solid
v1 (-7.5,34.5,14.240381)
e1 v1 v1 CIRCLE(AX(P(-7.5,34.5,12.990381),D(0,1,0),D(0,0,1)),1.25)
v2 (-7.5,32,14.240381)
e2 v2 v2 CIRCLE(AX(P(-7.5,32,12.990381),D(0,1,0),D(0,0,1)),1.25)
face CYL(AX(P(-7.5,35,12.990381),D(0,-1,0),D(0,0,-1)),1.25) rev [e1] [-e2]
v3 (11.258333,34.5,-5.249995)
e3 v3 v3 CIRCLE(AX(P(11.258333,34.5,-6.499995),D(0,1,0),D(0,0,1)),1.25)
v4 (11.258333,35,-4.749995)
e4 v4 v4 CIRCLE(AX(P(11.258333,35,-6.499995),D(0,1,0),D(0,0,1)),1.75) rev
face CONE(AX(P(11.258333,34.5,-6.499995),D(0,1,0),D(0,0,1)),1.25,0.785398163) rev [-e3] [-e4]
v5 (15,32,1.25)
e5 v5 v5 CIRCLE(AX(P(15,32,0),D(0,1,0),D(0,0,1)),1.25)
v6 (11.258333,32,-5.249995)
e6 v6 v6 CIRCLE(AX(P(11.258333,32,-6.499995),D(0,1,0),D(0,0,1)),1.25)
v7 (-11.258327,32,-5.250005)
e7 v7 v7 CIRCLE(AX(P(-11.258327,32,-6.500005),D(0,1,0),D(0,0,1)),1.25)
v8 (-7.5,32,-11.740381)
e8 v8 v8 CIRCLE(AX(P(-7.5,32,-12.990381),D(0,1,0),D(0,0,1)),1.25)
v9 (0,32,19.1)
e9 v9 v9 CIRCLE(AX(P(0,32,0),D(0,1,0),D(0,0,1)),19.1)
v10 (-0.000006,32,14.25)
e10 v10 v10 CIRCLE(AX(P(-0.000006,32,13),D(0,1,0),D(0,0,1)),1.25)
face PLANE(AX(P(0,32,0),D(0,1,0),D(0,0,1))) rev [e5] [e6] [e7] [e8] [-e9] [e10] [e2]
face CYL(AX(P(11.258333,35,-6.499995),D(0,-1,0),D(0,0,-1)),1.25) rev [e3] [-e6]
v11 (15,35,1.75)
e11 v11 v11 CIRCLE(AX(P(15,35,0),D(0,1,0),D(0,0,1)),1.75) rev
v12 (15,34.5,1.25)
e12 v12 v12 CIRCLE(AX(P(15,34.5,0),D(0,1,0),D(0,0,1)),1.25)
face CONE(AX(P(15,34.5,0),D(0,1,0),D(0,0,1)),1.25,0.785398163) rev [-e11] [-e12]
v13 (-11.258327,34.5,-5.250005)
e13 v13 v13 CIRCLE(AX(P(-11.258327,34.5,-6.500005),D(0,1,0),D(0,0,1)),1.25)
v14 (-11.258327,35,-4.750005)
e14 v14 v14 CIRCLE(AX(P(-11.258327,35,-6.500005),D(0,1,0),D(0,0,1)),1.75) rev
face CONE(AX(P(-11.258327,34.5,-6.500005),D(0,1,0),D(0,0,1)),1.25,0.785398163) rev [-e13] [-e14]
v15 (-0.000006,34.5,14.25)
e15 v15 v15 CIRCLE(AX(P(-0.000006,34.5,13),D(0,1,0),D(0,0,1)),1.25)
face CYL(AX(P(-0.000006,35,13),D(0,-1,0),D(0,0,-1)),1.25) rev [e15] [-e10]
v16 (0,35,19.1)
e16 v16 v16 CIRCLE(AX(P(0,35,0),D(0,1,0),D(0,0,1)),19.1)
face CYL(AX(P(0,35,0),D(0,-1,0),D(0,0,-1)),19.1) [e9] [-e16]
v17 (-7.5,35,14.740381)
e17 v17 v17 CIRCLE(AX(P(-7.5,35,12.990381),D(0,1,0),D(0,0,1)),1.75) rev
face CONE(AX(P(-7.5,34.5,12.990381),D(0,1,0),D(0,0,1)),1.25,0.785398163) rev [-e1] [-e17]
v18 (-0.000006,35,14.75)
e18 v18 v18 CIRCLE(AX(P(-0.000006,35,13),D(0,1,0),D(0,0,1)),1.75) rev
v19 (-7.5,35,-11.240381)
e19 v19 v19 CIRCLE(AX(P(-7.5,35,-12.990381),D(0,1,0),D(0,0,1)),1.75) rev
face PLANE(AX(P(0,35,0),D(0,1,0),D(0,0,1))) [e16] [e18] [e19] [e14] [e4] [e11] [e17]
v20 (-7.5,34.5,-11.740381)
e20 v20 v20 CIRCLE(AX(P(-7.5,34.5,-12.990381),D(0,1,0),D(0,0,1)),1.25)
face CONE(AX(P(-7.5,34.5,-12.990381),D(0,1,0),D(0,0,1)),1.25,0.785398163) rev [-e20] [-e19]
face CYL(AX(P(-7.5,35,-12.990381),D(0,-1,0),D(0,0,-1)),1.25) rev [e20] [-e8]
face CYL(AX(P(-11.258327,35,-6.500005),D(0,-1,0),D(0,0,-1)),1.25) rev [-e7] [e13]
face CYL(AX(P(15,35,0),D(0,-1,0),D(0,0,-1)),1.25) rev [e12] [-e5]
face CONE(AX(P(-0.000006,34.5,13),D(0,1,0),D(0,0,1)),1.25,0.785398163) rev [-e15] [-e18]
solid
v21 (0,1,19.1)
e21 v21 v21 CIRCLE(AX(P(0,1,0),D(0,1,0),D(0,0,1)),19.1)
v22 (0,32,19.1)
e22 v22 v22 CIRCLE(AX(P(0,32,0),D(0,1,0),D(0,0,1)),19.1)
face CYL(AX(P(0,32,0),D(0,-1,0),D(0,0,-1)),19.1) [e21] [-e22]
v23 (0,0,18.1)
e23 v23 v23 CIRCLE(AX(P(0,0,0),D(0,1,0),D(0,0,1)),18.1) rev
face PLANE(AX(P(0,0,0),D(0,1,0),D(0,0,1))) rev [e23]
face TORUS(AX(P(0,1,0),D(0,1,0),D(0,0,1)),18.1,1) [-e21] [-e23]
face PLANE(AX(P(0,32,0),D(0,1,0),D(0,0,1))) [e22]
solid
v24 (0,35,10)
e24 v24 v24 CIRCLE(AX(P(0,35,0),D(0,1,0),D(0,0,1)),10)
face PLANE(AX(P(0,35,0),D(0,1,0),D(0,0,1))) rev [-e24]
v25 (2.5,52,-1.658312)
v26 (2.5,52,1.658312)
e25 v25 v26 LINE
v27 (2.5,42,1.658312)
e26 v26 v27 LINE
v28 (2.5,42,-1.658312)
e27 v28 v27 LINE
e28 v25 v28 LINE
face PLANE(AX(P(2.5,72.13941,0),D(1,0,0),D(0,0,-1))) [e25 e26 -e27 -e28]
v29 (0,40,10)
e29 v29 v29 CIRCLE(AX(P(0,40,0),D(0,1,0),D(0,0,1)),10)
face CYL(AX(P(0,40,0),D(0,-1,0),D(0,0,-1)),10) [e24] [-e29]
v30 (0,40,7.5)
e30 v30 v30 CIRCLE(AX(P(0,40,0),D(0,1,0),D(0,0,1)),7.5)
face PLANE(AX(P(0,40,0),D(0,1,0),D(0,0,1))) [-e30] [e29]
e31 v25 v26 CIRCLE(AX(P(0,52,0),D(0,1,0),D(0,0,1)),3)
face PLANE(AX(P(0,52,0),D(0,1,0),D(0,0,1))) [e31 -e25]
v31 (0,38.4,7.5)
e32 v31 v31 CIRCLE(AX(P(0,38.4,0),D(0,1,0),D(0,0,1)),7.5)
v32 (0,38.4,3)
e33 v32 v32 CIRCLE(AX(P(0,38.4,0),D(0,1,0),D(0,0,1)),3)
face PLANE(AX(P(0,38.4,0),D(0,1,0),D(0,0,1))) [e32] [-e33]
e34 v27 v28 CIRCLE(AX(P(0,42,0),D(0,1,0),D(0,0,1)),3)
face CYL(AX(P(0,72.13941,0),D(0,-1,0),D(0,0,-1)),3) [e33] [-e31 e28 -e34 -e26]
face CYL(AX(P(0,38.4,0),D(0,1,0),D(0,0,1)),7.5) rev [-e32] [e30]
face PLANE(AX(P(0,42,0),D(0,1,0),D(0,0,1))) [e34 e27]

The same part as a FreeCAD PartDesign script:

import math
import FreeCAD as App
import Part
import Sketcher
from FreeCAD import Vector
Q = App.Units.Quantity


def edges_at(feature, points):
    """Names of the edges that pass closest to the given points."""
    edges = feature.Shape.Edges
    near = lambda p: min(range(len(edges)), key=lambda i: edges[i].distToShape(Part.Vertex(*p))[0])
    return sorted({f"Edge{near(p) + 1}" for p in points})

doc = App.newDocument("Part")
body = doc.addObject("PartDesign::Body", "Body")

# Sketch on XZ plane
sketch1 = body.newObject("Sketcher::SketchObject", "Sketch")
sketch1.AttachmentSupport = (doc.getObject("XZ_Plane"), [""])
sketch1.MapMode = "FlatFace"
sketch1.addGeometry(Part.Circle(Vector(0, 0, 0), Vector(0, 0, 1), 19), False)
sketch1.addConstraint([
    Sketcher.Constraint("Coincident", 0, 3, -1, 1),
    Sketcher.Constraint("Diameter", 0, Q("38.2 mm")),
])
pad1 = body.newObject("PartDesign::Pad", "Pad")
pad1.Profile = sketch1
pad1.Length = 32
pad1.Reversed = True
doc.recompute()

fillet = body.newObject("PartDesign::Fillet", "Fillet")
fillet.Base = (pad1, edges_at(pad1, [(0, 0, -19.1)]))
fillet.Radius = 1
body2 = doc.addObject("PartDesign::Body", "Body001")

# Sketch on XZ plane
sketch2 = body2.newObject("Sketcher::SketchObject", "Sketch001")
sketch2.AttachmentSupport = (doc.getObject("XZ_Plane001"), [""])
sketch2.MapMode = "FlatFace"
sketch2.AttachmentOffset = App.Placement(Vector(0, 0, -32), App.Rotation())
sketch2.addGeometry([
    Part.Circle(Vector(0, 0, 0), Vector(0, 0, 1), 19.1),  # 0
    Part.Circle(Vector(-7.5, -13, 0), Vector(0, 0, 1), 1.2),  # 1
    Part.Circle(Vector(-11.3, -6.5, 0), Vector(0, 0, 1), 1.2),  # 2
    Part.Circle(Vector(-7.5, 13, 0), Vector(0, 0, 1), 1.2),  # 3
    Part.Circle(Vector(0, 13, 0), Vector(0, 0, 1), 1.2),  # 4
    Part.Circle(Vector(11.3, -6.5, 0), Vector(0, 0, 1), 1.2),  # 5
    Part.Circle(Vector(15, 0, 0), Vector(0, 0, 1), 1.2),  # 6
], False)
sketch2.addConstraint([
    Sketcher.Constraint("Coincident", 0, 3, -1, 1),
    Sketcher.Constraint("Equal", 1, 2),
    Sketcher.Constraint("Equal", 2, 3),
    Sketcher.Constraint("Equal", 3, 4),
    Sketcher.Constraint("Equal", 4, 5),
    Sketcher.Constraint("Equal", 5, 6),
    Sketcher.Constraint("Symmetric", 1, 3, 3, 3, -1),
    Sketcher.Constraint("PointOnObject", 6, 3, -1),
    Sketcher.Constraint("Diameter", 0, Q("38.2 mm")),
    Sketcher.Constraint("Diameter", 1, Q("2.5 mm")),
    Sketcher.Constraint("DistanceY", -1, 1, 4, 3, Q("13 mm")),
    Sketcher.Constraint("DistanceX", -1, 1, 6, 3, Q("15 mm")),
    Sketcher.Constraint("DistanceX", 1, 3, -1, 1, Q("7.5 mm")),
    Sketcher.Constraint("DistanceY", 1, 3, -1, 1, Q("12.990381 mm")),
    Sketcher.Constraint("DistanceX", 2, 3, 4, 3, Q("11.258321 mm")),
    Sketcher.Constraint("DistanceX", 4, 3, 5, 3, Q("11.25834 mm")),
    Sketcher.Constraint("DistanceX", 2, 3, -1, 1, Q("11.258327 mm")),
    Sketcher.Constraint("DistanceY", 2, 3, -1, 1, Q("6.500005 mm")),
    Sketcher.Constraint("DistanceY", 5, 3, -1, 1, Q("6.499995 mm")),
])
pad2 = body2.newObject("PartDesign::Pad", "Pad001")
pad2.Profile = sketch2
pad2.Length = 3
pad2.Reversed = True
doc.recompute()

chamfer = body2.newObject("PartDesign::Chamfer", "Chamfer")
chamfer.Base = (pad2, edges_at(pad2, [
    (-11.258, 35, -7.75),
    (11.258, 35, -7.75),
    (-7.5, 35, -14.24),
    (15, 35, -1.25),
    (-7.5, 35, 11.74),
    (0, 35, 11.75),
]))
chamfer.Size = 0.5
body3 = doc.addObject("PartDesign::Body", "Body002")

# Sketch on XZ plane
sketch3 = body3.newObject("Sketcher::SketchObject", "Sketch002")
sketch3.AttachmentSupport = (doc.getObject("XZ_Plane002"), [""])
sketch3.MapMode = "FlatFace"
sketch3.AttachmentOffset = App.Placement(Vector(0, 0, -35), App.Rotation())
sketch3.addGeometry(Part.Circle(Vector(0, 0, 0), Vector(0, 0, 1), 10), False)
sketch3.addConstraint([
    Sketcher.Constraint("Coincident", 0, 3, -1, 1),
    Sketcher.Constraint("Diameter", 0, Q("20 mm")),
])
pad3 = body3.newObject("PartDesign::Pad", "Pad002")
pad3.Profile = sketch3
pad3.Length = 5
pad3.Reversed = True

# Sketch on XZ plane
sketch4 = body3.newObject("Sketcher::SketchObject", "Sketch003")
sketch4.AttachmentSupport = (doc.getObject("XZ_Plane002"), [""])
sketch4.MapMode = "FlatFace"
sketch4.AttachmentOffset = App.Placement(Vector(0, 0, -40), App.Rotation())
sketch4.addGeometry(Part.Circle(Vector(0, 0, 0), Vector(0, 0, 1), 8), False)
sketch4.addConstraint([
    Sketcher.Constraint("Coincident", 0, 3, -1, 1),
    Sketcher.Constraint("Diameter", 0, Q("15 mm")),
])
pocket1 = body3.newObject("PartDesign::Pocket", "Pocket")
pocket1.Profile = sketch4
pocket1.Length = 1.6
pocket1.Reversed = True

# Sketch on XZ plane
sketch5 = body3.newObject("Sketcher::SketchObject", "Sketch004")
sketch5.AttachmentSupport = (doc.getObject("XZ_Plane002"), [""])
sketch5.MapMode = "FlatFace"
sketch5.AttachmentOffset = App.Placement(Vector(0, 0, -38.4), App.Rotation())
sketch5.addGeometry([
    Part.LineSegment(Vector(2.5, 1.7, 0), Vector(2.5, -1.7, 0)),
    Part.ArcOfCircle(Part.Circle(Vector(0, 0, 0), Vector(0, 0, 1), 3), math.radians(34), math.radians(326)),
], False)
sketch5.addConstraint([
    Sketcher.Constraint("Coincident", 0, 1, 1, 1),
    Sketcher.Constraint("Coincident", 1, 2, 0, 2),
    Sketcher.Constraint("Vertical", 0),
    Sketcher.Constraint("Coincident", 1, 3, -1, 1),
    Sketcher.Constraint("Radius", 1, Q("3 mm")),
    Sketcher.Constraint("DistanceX", -1, 1, 0, 1, Q("2.5 mm")),
])
pad4 = body3.newObject("PartDesign::Pad", "Pad003")
pad4.Profile = sketch5
pad4.Length = 13.6
pad4.Reversed = True

# Sketch on XZ plane
sketch6 = body3.newObject("Sketcher::SketchObject", "Sketch005")
sketch6.AttachmentSupport = (doc.getObject("XZ_Plane002"), [""])
sketch6.MapMode = "FlatFace"
sketch6.AttachmentOffset = App.Placement(Vector(0, 0, -38.4), App.Rotation())
sketch6.addGeometry(Part.Circle(Vector(0, 0, 0), Vector(0, 0, 1), 3), False)
sketch6.addConstraint([
    Sketcher.Constraint("Coincident", 0, 3, -1, 1),
    Sketcher.Constraint("Diameter", 0, Q("6 mm")),
])
pad5 = body3.newObject("PartDesign::Pad", "Pad004")
pad5.Profile = sketch6
pad5.Length = 3.6
pad5.Reversed = True

doc.recompute()
